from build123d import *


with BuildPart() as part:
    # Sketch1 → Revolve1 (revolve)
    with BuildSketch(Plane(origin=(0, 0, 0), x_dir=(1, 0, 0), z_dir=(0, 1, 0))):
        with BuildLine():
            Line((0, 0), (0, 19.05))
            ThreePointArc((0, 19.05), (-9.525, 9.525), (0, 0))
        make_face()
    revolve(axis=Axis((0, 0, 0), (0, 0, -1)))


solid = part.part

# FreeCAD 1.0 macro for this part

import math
import FreeCAD as App
import Part
import Sketcher

V = App.Vector
Q = App.Units.Quantity

doc = App.newDocument("Part")
params = doc.addObject("Spreadsheet::Sheet", "Params")
for row, (alias, value) in enumerate([
    ("sketch1_radius", "0.375 in"),
    ("revolution_angle", "360 deg"),
], start=1):
    params.set(f"A{row}", alias)
    params.set(f"B{row}", "=" + value)
    params.setAlias(f"B{row}", alias)

body = doc.addObject("PartDesign::Body", "Body")

sketch1 = body.newObject("Sketcher::SketchObject", "Sketch")
sketch1.AttachmentSupport = (doc.getObject("XZ_Plane"), [""])
sketch1.MapMode = "FlatFace"
sketch1.addGeometry([
    Part.LineSegment(V(0, 0, 0), V(0, -19, 0)),
    Part.ArcOfCircle(Part.Circle(V(0, -10, 0), V(0, 0, 1), 10), math.radians(90), math.radians(270)),
], False)
sketch1.addConstraint([
    Sketcher.Constraint("Coincident", 0, 1, 1, 1),
    Sketcher.Constraint("Coincident", 1, 2, 0, 2),
    Sketcher.Constraint("Vertical", 0),
    Sketcher.Constraint("Coincident", 0, 1, -1, 1),
    Sketcher.Constraint("PointOnObject", 1, 3, -2),
    Sketcher.Constraint("Radius", 1, Q("0.375 in")),
])
sketch1.setExpression("Constraints[5]", "Params.sketch1_radius")
revolution = body.newObject("PartDesign::Revolution", "Revolution")
revolution.Profile = sketch1
revolution.ReferenceAxis = (sketch1, ["V_Axis"])
revolution.setExpression("Angle", "Params.revolution_angle")

doc.recompute()
